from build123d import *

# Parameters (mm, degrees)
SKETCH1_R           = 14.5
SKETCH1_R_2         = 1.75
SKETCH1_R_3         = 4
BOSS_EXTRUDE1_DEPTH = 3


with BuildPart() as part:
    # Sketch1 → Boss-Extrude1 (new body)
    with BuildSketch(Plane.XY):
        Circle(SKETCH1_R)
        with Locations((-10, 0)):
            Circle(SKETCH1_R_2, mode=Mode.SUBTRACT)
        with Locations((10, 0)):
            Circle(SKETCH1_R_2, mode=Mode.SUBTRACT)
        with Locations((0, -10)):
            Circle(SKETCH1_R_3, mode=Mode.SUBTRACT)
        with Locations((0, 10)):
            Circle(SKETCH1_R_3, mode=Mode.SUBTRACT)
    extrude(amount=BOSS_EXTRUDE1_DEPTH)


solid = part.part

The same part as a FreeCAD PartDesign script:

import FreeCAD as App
import Part
import Sketcher

V = App.Vector

doc = App.newDocument("Part")
params = doc.addObject("Spreadsheet::Sheet", "Params")
for row, (alias, value) in enumerate([
    ("sketch1_diameter", "29 mm"),
    ("sketch1_diameter2", "8 mm"),
    ("sketch1_diameter3", "3.5 mm"),
    ("pad1_length", "3 mm"),
], start=1):
    params.set(f"A{row}", alias)
    params.set(f"B{row}", "=" + value)
    params.setAlias(f"B{row}", alias)

body = doc.addObject("PartDesign::Body", "Body")

# Sketch on XY plane
sketch1 = body.newObject("Sketcher::SketchObject", "Sketch")
sketch1.AttachmentSupport = (doc.getObject("XY_Plane"), [""])
sketch1.MapMode = "FlatFace"
sketch1.addGeometry(Part.Circle(V(0, 0, 0), V(0, 0, 1), 14.5), False)
sketch1.addGeometry(Part.Circle(V(0, -10, 0), V(0, 0, 1), 4), False)
sketch1.addGeometry(Part.Circle(V(-10, 0, 0), V(0, 0, 1), 1.75), False)
sketch1.addGeometry(Part.Circle(V(10, 0, 0), V(0, 0, 1), 1.75), False)
sketch1.addGeometry(Part.Circle(V(0, 10, 0), V(0, 0, 1), 4), False)
sketch1.addConstraint(Sketcher.Constraint("Coincident", 0, 3, -1, 1))
sketch1.addConstraint(Sketcher.Constraint("Equal", 2, 3))
sketch1.addConstraint(Sketcher.Constraint("Equal", 1, 4))
sketch1.addConstraint(Sketcher.Constraint("Symmetric", 2, 3, 3, 3, -1, 1))
sketch1.addConstraint(Sketcher.Constraint("Symmetric", 1, 3, 4, 3, -1, 1))
sketch1.addConstraint(Sketcher.Constraint("PointOnObject", 1, 3, -2))
sketch1.addConstraint(Sketcher.Constraint("PointOnObject", 2, 3, -1))
sketch1.addConstraint(Sketcher.Constraint("Diameter", 0, 29.0))
sketch1.addConstraint(Sketcher.Constraint("Diameter", 1, 8.0))
sketch1.addConstraint(Sketcher.Constraint("Diameter", 2, 3.5))
sketch1.addConstraint(Sketcher.Constraint("DistanceY", 1, 3, -1, 1, 10.0))
sketch1.addConstraint(Sketcher.Constraint("DistanceX", 2, 3, -1, 1, 10.0))
sketch1.setExpression("Constraints[7]", "Params.sketch1_diameter")
sketch1.setExpression("Constraints[8]", "Params.sketch1_diameter2")
sketch1.setExpression("Constraints[9]", "Params.sketch1_diameter3")
pad1 = body.newObject("PartDesign::Pad", "Pad")
pad1.Profile = sketch1
pad1.setExpression("Length", "Params.pad1_length")

doc.recompute()
